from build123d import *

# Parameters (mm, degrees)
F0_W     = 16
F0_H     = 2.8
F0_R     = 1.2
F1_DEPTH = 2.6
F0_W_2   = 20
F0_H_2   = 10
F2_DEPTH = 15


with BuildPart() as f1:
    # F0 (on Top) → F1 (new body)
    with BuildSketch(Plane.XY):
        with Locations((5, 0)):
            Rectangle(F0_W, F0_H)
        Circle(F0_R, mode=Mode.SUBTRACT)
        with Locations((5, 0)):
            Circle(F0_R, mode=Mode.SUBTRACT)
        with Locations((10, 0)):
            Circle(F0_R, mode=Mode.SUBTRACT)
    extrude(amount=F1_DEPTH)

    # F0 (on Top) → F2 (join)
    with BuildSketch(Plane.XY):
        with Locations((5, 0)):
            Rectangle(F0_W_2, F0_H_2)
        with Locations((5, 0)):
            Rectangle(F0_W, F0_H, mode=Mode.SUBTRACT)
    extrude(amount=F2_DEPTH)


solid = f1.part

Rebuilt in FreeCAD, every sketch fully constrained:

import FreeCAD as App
import Part
import Sketcher


def add_polygon(sketch, points):
    """Adds a closed chain of lines whose ends are joined by coincident constraints."""
    first, n = sketch.GeometryCount, len(points)
    for a, b in zip(points, points[1:] + points[:1]):
        sketch.addGeometry(Part.LineSegment(App.Vector(*a, 0), App.Vector(*b, 0)), False)
    for i in range(n):
        sketch.addConstraint(Sketcher.Constraint("Coincident", first + i, 2, first + (i + 1) % n, 1))

doc = App.newDocument("Part")
body = doc.addObject("PartDesign::Body", "Body")

sketch1 = body.newObject("Sketcher::SketchObject", "Sketch")
sketch1.AttachmentSupport = (doc.getObject("XY_Plane"), [""])
sketch1.MapMode = "FlatFace"
add_polygon(sketch1, [(-3, 1.4), (-3, -1.4), (13, -1.4), (13, 1.4)])
sketch1.addGeometry(Part.Circle(App.Vector(0, 0, 0), App.Vector(0, 0, 1), 1.2), False)
sketch1.addGeometry(Part.Circle(App.Vector(5, 0, 0), App.Vector(0, 0, 1), 1.2), False)
sketch1.addGeometry(Part.Circle(App.Vector(10, 0, 0), App.Vector(0, 0, 1), 1.2), False)
sketch1.addConstraint([
    Sketcher.Constraint("Vertical", 0),
    Sketcher.Constraint("Horizontal", 1),
    Sketcher.Constraint("Vertical", 2),
    Sketcher.Constraint("Horizontal", 3),
    Sketcher.Constraint("Coincident", 4, 3, -1, 1),
    Sketcher.Constraint("Equal", 4, 5),
    Sketcher.Constraint("Equal", 5, 6),
    Sketcher.Constraint("PointOnObject", 5, 3, -1),
    Sketcher.Constraint("PointOnObject", 6, 3, -1),
    Sketcher.Constraint("Diameter", 4, 2.4),
    Sketcher.Constraint("DistanceX", 1, 1, 1, 2, 16.0),
    Sketcher.Constraint("DistanceY", 0, 2, 0, 1, 2.8),
    Sketcher.Constraint("DistanceX", -1, 1, 5, 3, 5.0),
    Sketcher.Constraint("DistanceX", -1, 1, 6, 3, 10.0),
    Sketcher.Constraint("DistanceX", 0, 2, -1, 1, 3.0),
    Sketcher.Constraint("DistanceY", 0, 2, -1, 1, 1.4),
])
pad1 = body.newObject("PartDesign::Pad", "Pad")
pad1.Profile = sketch1
pad1.Length = 2.6

sketch2 = body.newObject("Sketcher::SketchObject", "Sketch001")
sketch2.AttachmentSupport = (doc.getObject("XY_Plane"), [""])
sketch2.MapMode = "FlatFace"
add_polygon(sketch2, [(-5, 5), (-5, -5), (15, -5), (15, 5)])
add_polygon(sketch2, [(13, -1.4), (-3, -1.4), (-3, 1.4), (13, 1.4)])
sketch2.addConstraint([
    Sketcher.Constraint("Vertical", 0),
    Sketcher.Constraint("Horizontal", 1),
    Sketcher.Constraint("Vertical", 2),
    Sketcher.Constraint("Horizontal", 3),
    Sketcher.Constraint("Horizontal", 4),
    Sketcher.Constraint("Vertical", 5),
    Sketcher.Constraint("Horizontal", 6),
    Sketcher.Constraint("Vertical", 7),
    Sketcher.Constraint("DistanceX", 1, 1, 1, 2, 20.0),
    Sketcher.Constraint("DistanceX", 4, 2, 4, 1, 16.0),
    Sketcher.Constraint("DistanceY", 0, 2, 0, 1, 10.0),
    Sketcher.Constraint("DistanceY", 5, 1, 5, 2, 2.8),
    Sketcher.Constraint("DistanceX", 0, 2, -1, 1, 5.0),
    Sketcher.Constraint("DistanceY", 0, 2, -1, 1, 5.0),
    Sketcher.Constraint("DistanceX", 4, 2, -1, 1, 3.0),
    Sketcher.Constraint("DistanceY", 4, 2, -1, 1, 1.4),
])
pad2 = body.newObject("PartDesign::Pad", "Pad001")
pad2.Profile = sketch2
pad2.Length = 15

doc.recompute()
